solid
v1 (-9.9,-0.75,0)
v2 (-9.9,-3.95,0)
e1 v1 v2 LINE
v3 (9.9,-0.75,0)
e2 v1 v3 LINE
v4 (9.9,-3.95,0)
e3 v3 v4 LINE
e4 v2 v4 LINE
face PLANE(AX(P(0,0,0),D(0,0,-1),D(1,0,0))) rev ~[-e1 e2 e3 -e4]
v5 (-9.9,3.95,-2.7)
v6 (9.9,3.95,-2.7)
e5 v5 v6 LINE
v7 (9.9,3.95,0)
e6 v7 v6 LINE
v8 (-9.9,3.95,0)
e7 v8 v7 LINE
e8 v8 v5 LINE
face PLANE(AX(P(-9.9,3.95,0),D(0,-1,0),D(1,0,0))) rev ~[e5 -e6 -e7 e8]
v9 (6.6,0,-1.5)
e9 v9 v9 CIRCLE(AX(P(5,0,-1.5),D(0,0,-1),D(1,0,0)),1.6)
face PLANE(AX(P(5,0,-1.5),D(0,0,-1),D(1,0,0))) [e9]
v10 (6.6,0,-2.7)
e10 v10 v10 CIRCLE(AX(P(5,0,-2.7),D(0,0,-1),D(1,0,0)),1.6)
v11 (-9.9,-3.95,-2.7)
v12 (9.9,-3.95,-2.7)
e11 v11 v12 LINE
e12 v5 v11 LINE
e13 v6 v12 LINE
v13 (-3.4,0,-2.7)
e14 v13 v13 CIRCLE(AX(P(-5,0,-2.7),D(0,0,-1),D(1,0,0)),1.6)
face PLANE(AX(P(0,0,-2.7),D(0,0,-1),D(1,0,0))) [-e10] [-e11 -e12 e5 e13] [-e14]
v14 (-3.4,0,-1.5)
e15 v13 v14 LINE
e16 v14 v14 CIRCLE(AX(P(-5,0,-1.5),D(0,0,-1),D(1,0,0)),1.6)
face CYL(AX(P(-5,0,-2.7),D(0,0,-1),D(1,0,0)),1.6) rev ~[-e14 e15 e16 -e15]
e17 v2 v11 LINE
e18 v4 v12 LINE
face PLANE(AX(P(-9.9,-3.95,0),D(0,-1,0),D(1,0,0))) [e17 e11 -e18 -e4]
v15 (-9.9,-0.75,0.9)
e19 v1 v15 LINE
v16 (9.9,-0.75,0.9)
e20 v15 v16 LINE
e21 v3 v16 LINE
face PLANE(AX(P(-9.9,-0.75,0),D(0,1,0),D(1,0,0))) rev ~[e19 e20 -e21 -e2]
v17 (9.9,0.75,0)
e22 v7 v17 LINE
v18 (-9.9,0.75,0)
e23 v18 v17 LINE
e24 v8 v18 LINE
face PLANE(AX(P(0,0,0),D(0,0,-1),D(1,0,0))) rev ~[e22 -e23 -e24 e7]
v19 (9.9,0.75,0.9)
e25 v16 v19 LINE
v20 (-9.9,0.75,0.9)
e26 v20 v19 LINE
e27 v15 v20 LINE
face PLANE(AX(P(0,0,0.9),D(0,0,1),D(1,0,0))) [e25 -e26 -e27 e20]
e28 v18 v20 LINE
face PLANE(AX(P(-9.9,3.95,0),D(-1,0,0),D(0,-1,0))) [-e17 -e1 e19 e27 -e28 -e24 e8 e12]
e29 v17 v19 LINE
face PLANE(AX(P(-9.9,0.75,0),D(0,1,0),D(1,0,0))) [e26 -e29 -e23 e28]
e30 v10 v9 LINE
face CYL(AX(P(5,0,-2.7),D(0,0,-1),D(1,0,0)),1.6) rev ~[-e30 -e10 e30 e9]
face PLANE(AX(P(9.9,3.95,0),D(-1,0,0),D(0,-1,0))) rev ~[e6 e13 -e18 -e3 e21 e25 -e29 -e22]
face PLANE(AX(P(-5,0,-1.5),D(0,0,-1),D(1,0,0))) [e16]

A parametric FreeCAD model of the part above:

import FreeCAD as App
import Part
import Sketcher
Q = App.Units.Quantity


def add_polygon(sketch, points):
    """Adds a closed chain of lines whose ends are joined by coincident constraints."""
    first, n = sketch.GeometryCount, len(points)
    for a, b in zip(points, points[1:] + points[:1]):
        sketch.addGeometry(Part.LineSegment(App.Vector(*a, 0), App.Vector(*b, 0)), False)
    for i in range(n):
        sketch.addConstraint(Sketcher.Constraint("Coincident", first + i, 2, first + (i + 1) % n, 1))

doc = App.newDocument("Part")
params = doc.addObject("Spreadsheet::Sheet", "Params")
for row, (alias, value) in enumerate([
    ("sketch1_width", "19.8 mm"),
    ("sketch1_height", "1.5 mm"),
    ("pad1_length", "0.9 mm"),
    ("sketch2_width", "19.8 mm"),
    ("sketch2_height", "7.9 mm"),
    ("pad2_length", "2.7 mm"),
    ("sketch3_diameter", "3.2 mm"),
    ("pocket1_length", "1.2 mm"),
], start=1):
    params.set(f"A{row}", alias)
    params.set(f"B{row}", "=" + value)
    params.setAlias(f"B{row}", alias)

body = doc.addObject("PartDesign::Body", "Body")

# Sketch on XY plane
sketch1 = doc.addObject("Sketcher::SketchObject", "Sketch")
body.addObject(sketch1)
sketch1.AttachmentSupport = (doc.XY_Plane, [""])
sketch1.MapMode = "FlatFace"
add_polygon(sketch1, [(-9.9, 0.8), (-9.9, -0.8), (9.9, -0.8), (9.9, 0.8)])  # lines 0-3
sketch1.addConstraint(Sketcher.Constraint("Vertical", 0))
sketch1.addConstraint(Sketcher.Constraint("Horizontal", 1))
sketch1.addConstraint(Sketcher.Constraint("Vertical", 2))
sketch1.addConstraint(Sketcher.Constraint("Horizontal", 3))
sketch1.addConstraint(Sketcher.Constraint("Symmetric", 0, 2, 2, 2, -1, 1))
sketch1.addConstraint(Sketcher.Constraint("DistanceX", 1, 1, 1, 2, Q("19.8 mm")))
sketch1.addConstraint(Sketcher.Constraint("DistanceY", 0, 2, 0, 1, Q("1.5 mm")))
sketch1.setExpression("Constraints[9]", "Params.sketch1_width")
sketch1.setExpression("Constraints[10]", "Params.sketch1_height")
pad1 = doc.addObject("PartDesign::Pad", "Pad")
body.addObject(pad1)
pad1.Profile = sketch1
pad1.setExpression("Length", "Params.pad1_length")

# Sketch on XY plane
sketch2 = doc.addObject("Sketcher::SketchObject", "Sketch001")
body.addObject(sketch2)
sketch2.AttachmentSupport = (doc.XY_Plane, [""])
sketch2.MapMode = "FlatFace"
add_polygon(sketch2, [(-10, -4), (-10, 4), (10, 4), (10, -4)])  # lines 0-3
sketch2.addConstraint(Sketcher.Constraint("Vertical", 0))
sketch2.addConstraint(Sketcher.Constraint("Horizontal", 1))
sketch2.addConstraint(Sketcher.Constraint("Vertical", 2))
sketch2.addConstraint(Sketcher.Constraint("Horizontal", 3))
sketch2.addConstraint(Sketcher.Constraint("Symmetric", 0, 2, 2, 2, -1, 1))
sketch2.addConstraint(Sketcher.Constraint("DistanceX", 1, 1, 1, 2, Q("19.8 mm")))
sketch2.addConstraint(Sketcher.Constraint("DistanceY", 0, 1, 0, 2, Q("7.9 mm")))
sketch2.setExpression("Constraints[9]", "Params.sketch2_width")
sketch2.setExpression("Constraints[10]", "Params.sketch2_height")
pad2 = doc.addObject("PartDesign::Pad", "Pad001")
body.addObject(pad2)
pad2.Profile = sketch2
pad2.setExpression("Length", "Params.pad2_length")
pad2.Reversed = True

# Sketch on XY plane
sketch3 = doc.addObject("Sketcher::SketchObject", "Sketch002")
body.addObject(sketch3)
sketch3.AttachmentSupport = (doc.XY_Plane, [""])
sketch3.MapMode = "FlatFace"
sketch3.AttachmentOffset = App.Placement(App.Vector(0, 0, -2.7), App.Rotation())
sketch3.addGeometry(Part.Circle(App.Vector(-5, 0, 0), App.Vector(0, 0, 1), 1.6), False)
sketch3.addGeometry(Part.Circle(App.Vector(5, 0, 0), App.Vector(0, 0, 1), 1.6), False)
sketch3.addConstraint(Sketcher.Constraint("Equal", 0, 1))
sketch3.addConstraint(Sketcher.Constraint("Symmetric", 0, 3, 1, 3, -1, 1))
sketch3.addConstraint(Sketcher.Constraint("PointOnObject", 0, 3, -1))
sketch3.addConstraint(Sketcher.Constraint("Diameter", 0, Q("3.2 mm")))
sketch3.addConstraint(Sketcher.Constraint("DistanceX", 0, 3, -1, 1, Q("5 mm")))
sketch3.setExpression("Constraints[3]", "Params.sketch3_diameter")
pocket1 = doc.addObject("PartDesign::Pocket", "Pocket")
body.addObject(pocket1)
pocket1.Profile = sketch3
pocket1.setExpression("Length", "Params.pocket1_length")
pocket1.Reversed = True

doc.recompute()
